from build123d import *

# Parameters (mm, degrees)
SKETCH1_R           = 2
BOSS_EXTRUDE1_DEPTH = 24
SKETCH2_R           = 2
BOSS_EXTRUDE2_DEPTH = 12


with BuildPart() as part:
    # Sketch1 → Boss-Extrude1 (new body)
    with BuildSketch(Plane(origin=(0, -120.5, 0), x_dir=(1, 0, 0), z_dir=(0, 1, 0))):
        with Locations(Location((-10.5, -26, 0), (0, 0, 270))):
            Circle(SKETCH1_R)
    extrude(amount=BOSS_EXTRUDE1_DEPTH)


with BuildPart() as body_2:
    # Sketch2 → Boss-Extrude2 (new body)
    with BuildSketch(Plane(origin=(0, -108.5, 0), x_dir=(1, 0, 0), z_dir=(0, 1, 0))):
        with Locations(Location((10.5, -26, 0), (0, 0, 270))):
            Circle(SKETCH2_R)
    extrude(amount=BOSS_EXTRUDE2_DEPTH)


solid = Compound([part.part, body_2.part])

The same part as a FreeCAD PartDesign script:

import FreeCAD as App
import Part
import Sketcher

V = App.Vector

doc = App.newDocument("Part")
body = doc.addObject("PartDesign::Body", "Body")

# Sketch on XZ plane
sketch1 = body.newObject("Sketcher::SketchObject", "Sketch")
sketch1.AttachmentSupport = (doc.getObject("XZ_Plane"), [""])
sketch1.MapMode = "FlatFace"
sketch1.AttachmentOffset = App.Placement(V(0, 0, 120.5), App.Rotation())
sketch1.addGeometry(Part.Circle(V(-10.5, 26, 0), V(0, 0, 1), 2), False)
sketch1.addConstraint([
    Sketcher.Constraint("Diameter", 0, 4.0),
    Sketcher.Constraint("DistanceY", -1, 1, 0, 3, 26.0),
    Sketcher.Constraint("DistanceX", 0, 3, -1, 1, 10.5),
])
pad1 = body.newObject("PartDesign::Pad", "Pad")
pad1.Profile = sketch1
pad1.Length = 24
pad1.Reversed = True
body2 = doc.addObject("PartDesign::Body", "Body001")

# Sketch on XZ plane
sketch2 = body2.newObject("Sketcher::SketchObject", "Sketch001")
sketch2.AttachmentSupport = (doc.getObject("XZ_Plane001"), [""])
sketch2.MapMode = "FlatFace"
sketch2.AttachmentOffset = App.Placement(V(0, 0, 108.5), App.Rotation())
sketch2.addGeometry(Part.Circle(V(10.5, 26, 0), V(0, 0, 1), 2), False)
sketch2.addConstraint([
    Sketcher.Constraint("Diameter", 0, 4.0),
    Sketcher.Constraint("DistanceY", -1, 1, 0, 3, 26.0),
    Sketcher.Constraint("DistanceX", -1, 1, 0, 3, 10.5),
])
pad2 = body2.newObject("PartDesign::Pad", "Pad001")
pad2.Profile = sketch2
pad2.Length = 12
pad2.Reversed = True

doc.recompute()
